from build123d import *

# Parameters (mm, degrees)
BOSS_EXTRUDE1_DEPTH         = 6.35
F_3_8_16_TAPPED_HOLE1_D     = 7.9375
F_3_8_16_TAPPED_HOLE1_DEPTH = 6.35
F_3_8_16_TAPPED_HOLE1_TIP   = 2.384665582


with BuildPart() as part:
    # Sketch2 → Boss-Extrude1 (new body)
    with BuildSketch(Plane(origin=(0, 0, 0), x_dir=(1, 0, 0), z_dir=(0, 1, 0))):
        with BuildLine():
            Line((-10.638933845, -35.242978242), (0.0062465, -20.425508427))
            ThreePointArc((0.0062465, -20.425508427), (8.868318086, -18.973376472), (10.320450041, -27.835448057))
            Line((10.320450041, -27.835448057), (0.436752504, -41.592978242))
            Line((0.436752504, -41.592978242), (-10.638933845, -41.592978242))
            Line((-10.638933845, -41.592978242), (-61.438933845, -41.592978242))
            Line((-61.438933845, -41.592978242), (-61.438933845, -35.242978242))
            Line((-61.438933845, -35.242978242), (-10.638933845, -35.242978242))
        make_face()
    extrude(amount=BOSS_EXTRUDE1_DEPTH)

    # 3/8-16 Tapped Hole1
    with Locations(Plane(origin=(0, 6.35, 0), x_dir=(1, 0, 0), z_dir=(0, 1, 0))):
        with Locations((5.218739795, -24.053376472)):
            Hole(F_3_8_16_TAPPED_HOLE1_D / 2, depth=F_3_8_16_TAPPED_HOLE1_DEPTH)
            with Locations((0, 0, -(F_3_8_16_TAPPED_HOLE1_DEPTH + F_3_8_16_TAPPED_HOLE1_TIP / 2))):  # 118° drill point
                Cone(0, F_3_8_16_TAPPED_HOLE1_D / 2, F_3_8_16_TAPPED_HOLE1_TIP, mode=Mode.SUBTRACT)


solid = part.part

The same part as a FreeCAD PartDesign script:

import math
import FreeCAD as App
import Part
import Sketcher
Q = App.Units.Quantity

doc = App.newDocument("Part")
params = doc.addObject("Spreadsheet::Sheet", "Params")
for row, (alias, value) in enumerate([
    ("sketch1_width", "2 in"),
    ("sketch1_radius", "0.25 in"),
    ("sketch1_height", "0.25 in"),
    ("pad1_length", "0.25 in"),
    ("sketch2_diameter", "0.3125 in"),
    ("hole_diameter", "0.3125 in"),
    ("hole_depth", "0.25 in"),
], start=1):
    params.set(f"A{row}", alias)
    params.set(f"B{row}", "=" + value)
    params.setAlias(f"B{row}", alias)

body = doc.addObject("PartDesign::Body", "Body")

# Sketch on XZ plane
sketch1 = doc.addObject("Sketcher::SketchObject", "Sketch")
body.addObject(sketch1)
sketch1.AttachmentSupport = (doc.XZ_Plane, [""])
sketch1.MapMode = "FlatFace"
sketch1.addGeometry([
    Part.LineSegment(App.Vector(0.006247, 20.425508, 0), App.Vector(-10.638934, 35.242978, 0)),  # 0
    Part.LineSegment(App.Vector(-10.638934, 35.242978, 0), App.Vector(-61.438934, 35.242978, 0)),  # 1
    Part.LineSegment(App.Vector(-61.438934, 35.242978, 0), App.Vector(-61.438934, 41.592978, 0)),  # 2
    Part.LineSegment(App.Vector(-61.438934, 41.592978, 0), App.Vector(0.436753, 41.592978, 0)),  # 3
    Part.LineSegment(App.Vector(0.436753, 41.592978, 0), App.Vector(10.32045, 27.835448, 0)),  # 4
    Part.ArcOfCircle(Part.Circle(App.Vector(5.163348, 24.130478, 0), App.Vector(0, 0, 1), 6.35), math.radians(-144.305743), math.radians(35.694257)),  # 5
], False)
sketch1.addConstraint([
    Sketcher.Constraint("Coincident", 0, 2, 1, 1),
    Sketcher.Constraint("Coincident", 1, 2, 2, 1),
    Sketcher.Constraint("Coincident", 2, 2, 3, 1),
    Sketcher.Constraint("Coincident", 3, 2, 4, 1),
    Sketcher.Constraint("Tangent", 4, 2, 5, 2),
    Sketcher.Constraint("Tangent", 5, 1, 0, 1),
    Sketcher.Constraint("Horizontal", 1),
    Sketcher.Constraint("Vertical", 2),
    Sketcher.Constraint("Horizontal", 3),
    Sketcher.Constraint("Parallel", 0, 4),
    Sketcher.Constraint("DistanceX", 1, 2, 1, 1, Q("2 in")),
    Sketcher.Constraint("Radius", 5, Q("0.25 in")),
    Sketcher.Constraint("DistanceY", 2, 1, 2, 2, Q("0.25 in")),
    Sketcher.Constraint("DistanceY", 5, 3, 0, 2, Q("0.4375 in")),
    Sketcher.Constraint("DistanceX", 5, 3, 4, 2, 5.157102),
    Sketcher.Constraint("DistanceX", -1, 1, 5, 3, 5.163348),
    Sketcher.Constraint("DistanceY", -1, 1, 5, 3, 24.130478),
])
sketch1.setExpression("Constraints[10]", "Params.sketch1_width")
sketch1.setExpression("Constraints[11]", "Params.sketch1_radius")
sketch1.setExpression("Constraints[12]", "Params.sketch1_height")
pad1 = doc.addObject("PartDesign::Pad", "Pad")
body.addObject(pad1)
pad1.Profile = sketch1
pad1.setExpression("Length", "Params.pad1_length")
pad1.Reversed = True

# Sketch on XZ plane
sketch2 = doc.addObject("Sketcher::SketchObject", "Sketch001")
body.addObject(sketch2)
sketch2.AttachmentSupport = (doc.XZ_Plane, [""])
sketch2.MapMode = "FlatFace"
sketch2.AttachmentOffset = App.Placement(App.Vector(0, 0, -0.25 * 25.4), App.Rotation())
sketch2.addGeometry(Part.Circle(App.Vector(5.21874, 24.053376, 0), App.Vector(0, 0, 1), 3.96875), False)
sketch2.addConstraint([
    Sketcher.Constraint("Diameter", 0, Q("0.3125 in")),
    Sketcher.Constraint("DistanceX", -1, 1, 0, 3, 5.21874),
    Sketcher.Constraint("DistanceY", -1, 1, 0, 3, 24.053376),
])
sketch2.setExpression("Constraints[0]", "Params.sketch2_diameter")
doc.recompute()
hole = doc.addObject("PartDesign::Hole", "Hole")
body.addObject(hole)
hole.Profile = sketch2
hole.ThreadType = "None"
hole.setExpression("Diameter", "Params.hole_diameter")
hole.DepthType = "Dimension"
hole.setExpression("Depth", "Params.hole_depth")
hole.DrillPoint = "Angled"
hole.DrillPointAngle = 118
hole.Reversed = True

doc.recompute()
